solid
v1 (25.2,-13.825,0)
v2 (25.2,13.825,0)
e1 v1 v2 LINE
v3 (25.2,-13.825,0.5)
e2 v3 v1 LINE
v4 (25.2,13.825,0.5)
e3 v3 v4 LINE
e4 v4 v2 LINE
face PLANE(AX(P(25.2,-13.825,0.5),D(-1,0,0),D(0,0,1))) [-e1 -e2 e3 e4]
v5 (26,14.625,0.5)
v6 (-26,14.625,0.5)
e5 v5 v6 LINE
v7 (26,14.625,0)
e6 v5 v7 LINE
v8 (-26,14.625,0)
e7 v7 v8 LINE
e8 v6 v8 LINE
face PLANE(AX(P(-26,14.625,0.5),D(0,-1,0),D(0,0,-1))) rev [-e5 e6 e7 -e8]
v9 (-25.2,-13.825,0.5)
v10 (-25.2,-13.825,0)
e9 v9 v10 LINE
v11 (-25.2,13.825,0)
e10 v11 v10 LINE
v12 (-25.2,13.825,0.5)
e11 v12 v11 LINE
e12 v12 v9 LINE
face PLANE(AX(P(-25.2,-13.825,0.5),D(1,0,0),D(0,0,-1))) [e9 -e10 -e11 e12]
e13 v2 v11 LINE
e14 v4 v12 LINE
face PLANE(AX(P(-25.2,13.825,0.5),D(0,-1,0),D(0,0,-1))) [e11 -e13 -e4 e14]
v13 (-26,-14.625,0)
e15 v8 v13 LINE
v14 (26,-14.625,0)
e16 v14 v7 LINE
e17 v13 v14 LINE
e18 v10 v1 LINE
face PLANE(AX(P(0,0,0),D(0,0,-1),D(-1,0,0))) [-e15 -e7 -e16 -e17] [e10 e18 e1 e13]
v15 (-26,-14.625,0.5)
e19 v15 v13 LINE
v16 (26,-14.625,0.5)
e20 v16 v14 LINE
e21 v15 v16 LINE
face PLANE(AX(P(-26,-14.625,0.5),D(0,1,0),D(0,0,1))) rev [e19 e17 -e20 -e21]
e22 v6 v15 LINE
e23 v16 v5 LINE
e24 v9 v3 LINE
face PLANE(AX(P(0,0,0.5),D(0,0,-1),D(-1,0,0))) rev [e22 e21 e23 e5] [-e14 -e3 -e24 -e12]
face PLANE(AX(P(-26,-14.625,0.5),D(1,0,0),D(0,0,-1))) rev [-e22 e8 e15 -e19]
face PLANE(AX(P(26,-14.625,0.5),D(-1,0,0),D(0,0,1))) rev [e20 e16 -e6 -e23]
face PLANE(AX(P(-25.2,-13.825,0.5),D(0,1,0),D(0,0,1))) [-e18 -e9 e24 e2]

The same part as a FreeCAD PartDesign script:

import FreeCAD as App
import Part
import Sketcher
Q = App.Units.Quantity

doc = App.newDocument("Part")
params = doc.addObject("Spreadsheet::Sheet", "Params")
for row, (alias, value) in enumerate([
    ("sketch1_width", "52 mm"),
    ("sketch1_width2", "50.4 mm"),
    ("sketch1_height", "29.25 mm"),
    ("sketch1_height2", "27.65 mm"),
    ("pad1_length", "0.5 mm"),
], start=1):
    params.set(f"A{row}", alias)
    params.set(f"B{row}", "=" + value)
    params.setAlias(f"B{row}", alias)

body = doc.addObject("PartDesign::Body", "Body")

sketch1 = doc.addObject("Sketcher::SketchObject", "Sketch")
body.addObject(sketch1)
sketch1.AttachmentSupport = (doc.XY_Plane, [""])
sketch1.MapMode = "FlatFace"
sketch1.addGeometry(Part.LineSegment(App.Vector(-26, 15, 0), App.Vector(-26, -15, 0)), False)
sketch1.addGeometry(Part.LineSegment(App.Vector(-26, -15, 0), App.Vector(26, -15, 0)), False)
sketch1.addGeometry(Part.LineSegment(App.Vector(26, -15, 0), App.Vector(26, 15, 0)), False)
sketch1.addGeometry(Part.LineSegment(App.Vector(26, 15, 0), App.Vector(-26, 15, 0)), False)
sketch1.addGeometry(Part.LineSegment(App.Vector(25, -14, 0), App.Vector(-25, -14, 0)), False)
sketch1.addGeometry(Part.LineSegment(App.Vector(-25, -14, 0), App.Vector(-25, 14, 0)), False)
sketch1.addGeometry(Part.LineSegment(App.Vector(-25, 14, 0), App.Vector(25, 14, 0)), False)
sketch1.addGeometry(Part.LineSegment(App.Vector(25, 14, 0), App.Vector(25, -14, 0)), False)
sketch1.addConstraint(Sketcher.Constraint("Coincident", 0, 2, 1, 1))
sketch1.addConstraint(Sketcher.Constraint("Coincident", 1, 2, 2, 1))
sketch1.addConstraint(Sketcher.Constraint("Coincident", 2, 2, 3, 1))
sketch1.addConstraint(Sketcher.Constraint("Coincident", 3, 2, 0, 1))
sketch1.addConstraint(Sketcher.Constraint("Coincident", 4, 2, 5, 1))
sketch1.addConstraint(Sketcher.Constraint("Coincident", 5, 2, 6, 1))
sketch1.addConstraint(Sketcher.Constraint("Coincident", 6, 2, 7, 1))
sketch1.addConstraint(Sketcher.Constraint("Coincident", 7, 2, 4, 1))
sketch1.addConstraint(Sketcher.Constraint("Vertical", 0))
sketch1.addConstraint(Sketcher.Constraint("Horizontal", 1))
sketch1.addConstraint(Sketcher.Constraint("Vertical", 2))
sketch1.addConstraint(Sketcher.Constraint("Horizontal", 3))
sketch1.addConstraint(Sketcher.Constraint("Horizontal", 4))
sketch1.addConstraint(Sketcher.Constraint("Vertical", 5))
sketch1.addConstraint(Sketcher.Constraint("Horizontal", 6))
sketch1.addConstraint(Sketcher.Constraint("Vertical", 7))
sketch1.addConstraint(Sketcher.Constraint("Symmetric", 0, 2, 2, 2, -1, 1))
sketch1.addConstraint(Sketcher.Constraint("Symmetric", 4, 2, 6, 2, -1, 1))
sketch1.addConstraint(Sketcher.Constraint("DistanceX", 1, 1, 1, 2, Q("52 mm")))
sketch1.addConstraint(Sketcher.Constraint("DistanceX", 4, 2, 4, 1, Q("50.4 mm")))
sketch1.addConstraint(Sketcher.Constraint("DistanceY", 0, 2, 0, 1, Q("29.25 mm")))
sketch1.addConstraint(Sketcher.Constraint("DistanceY", 5, 1, 5, 2, Q("27.65 mm")))
sketch1.setExpression("Constraints[18]", "Params.sketch1_width")
sketch1.setExpression("Constraints[19]", "Params.sketch1_width2")
sketch1.setExpression("Constraints[20]", "Params.sketch1_height")
sketch1.setExpression("Constraints[21]", "Params.sketch1_height2")
pad1 = doc.addObject("PartDesign::Pad", "Pad")
body.addObject(pad1)
pad1.Profile = sketch1
pad1.setExpression("Length", "Params.pad1_length")

doc.recompute()
